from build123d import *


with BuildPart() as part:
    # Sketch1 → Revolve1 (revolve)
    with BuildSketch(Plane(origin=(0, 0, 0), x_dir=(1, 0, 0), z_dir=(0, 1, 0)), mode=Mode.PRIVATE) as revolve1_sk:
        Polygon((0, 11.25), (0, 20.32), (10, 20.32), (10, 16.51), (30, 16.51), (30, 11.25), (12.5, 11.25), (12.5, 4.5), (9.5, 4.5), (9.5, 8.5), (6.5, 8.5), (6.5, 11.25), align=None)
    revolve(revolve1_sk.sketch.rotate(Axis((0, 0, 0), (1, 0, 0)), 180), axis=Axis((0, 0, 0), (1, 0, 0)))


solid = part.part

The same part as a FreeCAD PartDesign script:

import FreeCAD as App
import Part
import Sketcher

V = App.Vector


def add_polygon(sketch, points):
    """Adds a closed chain of lines whose ends are joined by coincident constraints."""
    first, n = sketch.GeometryCount, len(points)
    for a, b in zip(points, points[1:] + points[:1]):
        sketch.addGeometry(Part.LineSegment(App.Vector(*a, 0), App.Vector(*b, 0)), False)
    for i in range(n):
        sketch.addConstraint(Sketcher.Constraint("Coincident", first + i, 2, first + (i + 1) % n, 1))

doc = App.newDocument("Part")
body = doc.addObject("PartDesign::Body", "Body")

sketch1 = body.newObject("Sketcher::SketchObject", "Sketch")
sketch1.AttachmentSupport = (doc.getObject("XZ_Plane"), [""])
sketch1.MapMode = "FlatFace"
add_polygon(sketch1, [(0, -20.3), (0, -11.2), (6.5, -11.2), (6.5, -8.5), (9.5, -8.5), (9.5, -4.5), (12.5, -4.5), (12.5, -11.2), (30, -11.2), (30, -16.5), (10, -16.5), (10, -20.3)])
sketch1.addConstraint([
    Sketcher.Constraint("Vertical", 0),
    Sketcher.Constraint("Horizontal", 1),
    Sketcher.Constraint("Vertical", 2),
    Sketcher.Constraint("Horizontal", 3),
    Sketcher.Constraint("Vertical", 4),
    Sketcher.Constraint("Horizontal", 5),
    Sketcher.Constraint("Vertical", 6),
    Sketcher.Constraint("Horizontal", 7),
    Sketcher.Constraint("Vertical", 8),
    Sketcher.Constraint("Horizontal", 9),
    Sketcher.Constraint("Vertical", 10),
    Sketcher.Constraint("Horizontal", 11),
    Sketcher.Constraint("PointOnObject", 0, 2, -2),
    Sketcher.Constraint("Horizontal", 1, 2, 6, 2),
    Sketcher.Constraint("Equal", 3, 5),
    Sketcher.Constraint("DistanceX", 3, 1, 3, 2, 3.0),
    Sketcher.Constraint("DistanceX", 9, 2, 9, 1, 20.0),
    Sketcher.Constraint("DistanceX", 11, 2, 11, 1, 10.0),
    Sketcher.Constraint("DistanceY", 4, 1, 4, 2, 4.0),
    Sketcher.Constraint("DistanceX", 1, 1, 1, 2, 6.5),
    Sketcher.Constraint("DistanceY", 0, 1, 0, 2, 9.07),
    Sketcher.Constraint("DistanceY", 2, 1, 2, 2, 2.75),
    Sketcher.Constraint("DistanceY", 8, 2, 8, 1, 5.26),
    Sketcher.Constraint("DistanceY", 2, 2, -1, 1, 8.5),
])
revolution = body.newObject("PartDesign::Revolution", "Revolution")
revolution.Profile = sketch1
revolution.ReferenceAxis = (sketch1, ["H_Axis"])
revolution.Angle = 360

doc.recompute()
